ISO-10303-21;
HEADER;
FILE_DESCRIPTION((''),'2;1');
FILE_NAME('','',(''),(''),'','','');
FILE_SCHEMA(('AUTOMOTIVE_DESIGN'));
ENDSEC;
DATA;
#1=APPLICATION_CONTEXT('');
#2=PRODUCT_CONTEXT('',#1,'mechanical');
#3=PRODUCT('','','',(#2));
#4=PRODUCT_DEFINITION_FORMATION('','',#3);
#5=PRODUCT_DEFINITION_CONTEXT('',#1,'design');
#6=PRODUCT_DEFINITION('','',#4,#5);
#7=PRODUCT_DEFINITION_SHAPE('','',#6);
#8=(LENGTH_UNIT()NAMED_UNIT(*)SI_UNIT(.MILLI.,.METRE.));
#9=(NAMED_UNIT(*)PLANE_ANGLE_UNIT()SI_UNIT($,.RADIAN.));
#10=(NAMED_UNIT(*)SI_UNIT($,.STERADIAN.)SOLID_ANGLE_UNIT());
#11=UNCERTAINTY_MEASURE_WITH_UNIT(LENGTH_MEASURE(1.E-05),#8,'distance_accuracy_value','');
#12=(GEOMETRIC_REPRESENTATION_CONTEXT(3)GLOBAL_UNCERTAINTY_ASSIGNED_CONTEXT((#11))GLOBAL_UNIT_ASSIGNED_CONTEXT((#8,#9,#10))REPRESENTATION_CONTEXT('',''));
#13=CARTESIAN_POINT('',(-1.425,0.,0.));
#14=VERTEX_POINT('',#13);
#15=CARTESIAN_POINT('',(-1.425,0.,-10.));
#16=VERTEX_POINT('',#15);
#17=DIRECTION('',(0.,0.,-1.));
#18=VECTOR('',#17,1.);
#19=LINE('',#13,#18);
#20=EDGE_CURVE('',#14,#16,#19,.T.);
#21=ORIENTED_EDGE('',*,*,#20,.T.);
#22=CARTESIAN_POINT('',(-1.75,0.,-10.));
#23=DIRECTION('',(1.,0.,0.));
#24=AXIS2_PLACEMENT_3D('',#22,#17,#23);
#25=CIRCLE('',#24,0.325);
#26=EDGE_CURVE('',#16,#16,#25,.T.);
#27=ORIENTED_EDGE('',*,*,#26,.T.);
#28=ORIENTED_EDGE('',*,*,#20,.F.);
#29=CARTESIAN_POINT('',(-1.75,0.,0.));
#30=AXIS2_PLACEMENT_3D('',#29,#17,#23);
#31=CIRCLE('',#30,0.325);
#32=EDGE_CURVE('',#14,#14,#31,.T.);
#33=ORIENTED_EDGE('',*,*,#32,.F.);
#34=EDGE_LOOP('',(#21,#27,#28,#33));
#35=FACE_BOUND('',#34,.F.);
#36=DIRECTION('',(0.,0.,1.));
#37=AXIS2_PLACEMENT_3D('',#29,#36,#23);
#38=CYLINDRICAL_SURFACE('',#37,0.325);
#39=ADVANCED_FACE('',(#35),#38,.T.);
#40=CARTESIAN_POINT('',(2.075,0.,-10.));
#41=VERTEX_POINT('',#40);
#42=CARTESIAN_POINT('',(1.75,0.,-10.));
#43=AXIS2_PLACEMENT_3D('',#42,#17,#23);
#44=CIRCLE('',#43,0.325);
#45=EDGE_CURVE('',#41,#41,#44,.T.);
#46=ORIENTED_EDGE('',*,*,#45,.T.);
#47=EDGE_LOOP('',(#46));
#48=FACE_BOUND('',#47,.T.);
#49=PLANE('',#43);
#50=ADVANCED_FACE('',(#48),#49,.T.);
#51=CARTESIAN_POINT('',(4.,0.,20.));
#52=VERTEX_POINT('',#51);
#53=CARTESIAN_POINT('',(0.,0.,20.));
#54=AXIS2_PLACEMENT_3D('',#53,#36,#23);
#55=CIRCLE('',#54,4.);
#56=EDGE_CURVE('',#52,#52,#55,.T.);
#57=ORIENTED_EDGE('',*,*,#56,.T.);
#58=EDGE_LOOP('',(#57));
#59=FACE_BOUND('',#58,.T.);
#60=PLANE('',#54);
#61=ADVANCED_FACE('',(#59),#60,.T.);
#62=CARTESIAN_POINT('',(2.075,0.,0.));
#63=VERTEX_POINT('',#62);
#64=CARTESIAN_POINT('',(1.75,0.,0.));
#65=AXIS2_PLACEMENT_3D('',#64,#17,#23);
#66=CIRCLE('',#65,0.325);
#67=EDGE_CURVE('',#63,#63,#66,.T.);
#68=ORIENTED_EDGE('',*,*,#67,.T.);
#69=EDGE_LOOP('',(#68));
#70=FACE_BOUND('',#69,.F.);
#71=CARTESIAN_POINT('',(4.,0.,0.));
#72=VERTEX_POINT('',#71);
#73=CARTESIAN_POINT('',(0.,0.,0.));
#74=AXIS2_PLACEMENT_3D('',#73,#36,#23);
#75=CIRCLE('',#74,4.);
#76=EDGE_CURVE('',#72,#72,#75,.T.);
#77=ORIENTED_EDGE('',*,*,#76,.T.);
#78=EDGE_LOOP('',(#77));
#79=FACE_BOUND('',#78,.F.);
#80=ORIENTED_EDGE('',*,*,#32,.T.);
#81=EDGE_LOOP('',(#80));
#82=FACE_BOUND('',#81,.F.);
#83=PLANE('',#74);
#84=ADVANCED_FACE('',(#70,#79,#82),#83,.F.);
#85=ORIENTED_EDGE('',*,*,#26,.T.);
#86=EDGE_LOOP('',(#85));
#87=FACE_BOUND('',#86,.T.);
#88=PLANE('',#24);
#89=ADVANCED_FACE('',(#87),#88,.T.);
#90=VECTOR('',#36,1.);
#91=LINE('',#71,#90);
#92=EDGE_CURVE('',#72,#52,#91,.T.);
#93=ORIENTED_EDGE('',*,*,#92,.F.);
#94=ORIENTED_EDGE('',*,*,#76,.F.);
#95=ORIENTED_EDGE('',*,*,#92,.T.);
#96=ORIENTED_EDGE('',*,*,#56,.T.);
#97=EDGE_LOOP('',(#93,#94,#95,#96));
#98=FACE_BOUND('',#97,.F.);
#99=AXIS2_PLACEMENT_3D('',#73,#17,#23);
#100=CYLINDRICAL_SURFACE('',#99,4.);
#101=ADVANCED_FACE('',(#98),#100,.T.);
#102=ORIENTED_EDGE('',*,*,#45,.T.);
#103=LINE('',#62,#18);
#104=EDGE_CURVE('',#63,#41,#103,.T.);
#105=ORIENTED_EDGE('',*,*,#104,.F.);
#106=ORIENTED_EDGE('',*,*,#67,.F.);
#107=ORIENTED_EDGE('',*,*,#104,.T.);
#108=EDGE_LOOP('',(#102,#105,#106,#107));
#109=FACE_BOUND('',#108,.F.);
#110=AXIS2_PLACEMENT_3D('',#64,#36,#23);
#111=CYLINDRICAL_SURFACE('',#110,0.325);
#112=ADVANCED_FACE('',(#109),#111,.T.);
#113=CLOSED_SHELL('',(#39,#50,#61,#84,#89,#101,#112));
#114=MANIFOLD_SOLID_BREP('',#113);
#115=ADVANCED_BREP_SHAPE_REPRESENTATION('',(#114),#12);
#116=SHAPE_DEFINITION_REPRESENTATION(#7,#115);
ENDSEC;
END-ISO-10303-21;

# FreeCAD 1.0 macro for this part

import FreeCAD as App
import Part
import Sketcher
from FreeCAD import Vector
Q = App.Units.Quantity

doc = App.newDocument("Part")
body = doc.addObject("PartDesign::Body", "Body")

# Sketch on XY plane
sketch1 = body.newObject("Sketcher::SketchObject", "Sketch")
sketch1.AttachmentSupport = (doc.getObject("XY_Plane"), [""])
sketch1.MapMode = "FlatFace"
sketch1.addGeometry(Part.Circle(Vector(0, 0, 0), Vector(0, 0, 1), 4), False)
sketch1.addConstraint([
    Sketcher.Constraint("Coincident", 0, 3, -1, 1),
    Sketcher.Constraint("Diameter", 0, Q("8 mm")),
])
pad1 = body.newObject("PartDesign::Pad", "Pad")
pad1.Profile = sketch1
pad1.Length = 20

# Sketch on XY plane
sketch2 = body.newObject("Sketcher::SketchObject", "Sketch001")
sketch2.AttachmentSupport = (doc.getObject("XY_Plane"), [""])
sketch2.MapMode = "FlatFace"
sketch2.addGeometry([
    Part.Circle(Vector(-1.75, 0, 0), Vector(0, 0, 1), 0.33),
    Part.Circle(Vector(1.75, 0, 0), Vector(0, 0, 1), 0.33),
], False)
sketch2.addConstraint([
    Sketcher.Constraint("Equal", 0, 1),
    Sketcher.Constraint("Symmetric", 0, 3, 1, 3, -1, 1),
    Sketcher.Constraint("PointOnObject", 0, 3, -1),
    Sketcher.Constraint("Diameter", 0, Q("0.65 mm")),
    Sketcher.Constraint("DistanceX", 0, 3, 1, 3, Q("3.5 mm")),
])
pad2 = body.newObject("PartDesign::Pad", "Pad001")
pad2.Profile = sketch2
pad2.Length = 10
pad2.Reversed = True

doc.recompute()
